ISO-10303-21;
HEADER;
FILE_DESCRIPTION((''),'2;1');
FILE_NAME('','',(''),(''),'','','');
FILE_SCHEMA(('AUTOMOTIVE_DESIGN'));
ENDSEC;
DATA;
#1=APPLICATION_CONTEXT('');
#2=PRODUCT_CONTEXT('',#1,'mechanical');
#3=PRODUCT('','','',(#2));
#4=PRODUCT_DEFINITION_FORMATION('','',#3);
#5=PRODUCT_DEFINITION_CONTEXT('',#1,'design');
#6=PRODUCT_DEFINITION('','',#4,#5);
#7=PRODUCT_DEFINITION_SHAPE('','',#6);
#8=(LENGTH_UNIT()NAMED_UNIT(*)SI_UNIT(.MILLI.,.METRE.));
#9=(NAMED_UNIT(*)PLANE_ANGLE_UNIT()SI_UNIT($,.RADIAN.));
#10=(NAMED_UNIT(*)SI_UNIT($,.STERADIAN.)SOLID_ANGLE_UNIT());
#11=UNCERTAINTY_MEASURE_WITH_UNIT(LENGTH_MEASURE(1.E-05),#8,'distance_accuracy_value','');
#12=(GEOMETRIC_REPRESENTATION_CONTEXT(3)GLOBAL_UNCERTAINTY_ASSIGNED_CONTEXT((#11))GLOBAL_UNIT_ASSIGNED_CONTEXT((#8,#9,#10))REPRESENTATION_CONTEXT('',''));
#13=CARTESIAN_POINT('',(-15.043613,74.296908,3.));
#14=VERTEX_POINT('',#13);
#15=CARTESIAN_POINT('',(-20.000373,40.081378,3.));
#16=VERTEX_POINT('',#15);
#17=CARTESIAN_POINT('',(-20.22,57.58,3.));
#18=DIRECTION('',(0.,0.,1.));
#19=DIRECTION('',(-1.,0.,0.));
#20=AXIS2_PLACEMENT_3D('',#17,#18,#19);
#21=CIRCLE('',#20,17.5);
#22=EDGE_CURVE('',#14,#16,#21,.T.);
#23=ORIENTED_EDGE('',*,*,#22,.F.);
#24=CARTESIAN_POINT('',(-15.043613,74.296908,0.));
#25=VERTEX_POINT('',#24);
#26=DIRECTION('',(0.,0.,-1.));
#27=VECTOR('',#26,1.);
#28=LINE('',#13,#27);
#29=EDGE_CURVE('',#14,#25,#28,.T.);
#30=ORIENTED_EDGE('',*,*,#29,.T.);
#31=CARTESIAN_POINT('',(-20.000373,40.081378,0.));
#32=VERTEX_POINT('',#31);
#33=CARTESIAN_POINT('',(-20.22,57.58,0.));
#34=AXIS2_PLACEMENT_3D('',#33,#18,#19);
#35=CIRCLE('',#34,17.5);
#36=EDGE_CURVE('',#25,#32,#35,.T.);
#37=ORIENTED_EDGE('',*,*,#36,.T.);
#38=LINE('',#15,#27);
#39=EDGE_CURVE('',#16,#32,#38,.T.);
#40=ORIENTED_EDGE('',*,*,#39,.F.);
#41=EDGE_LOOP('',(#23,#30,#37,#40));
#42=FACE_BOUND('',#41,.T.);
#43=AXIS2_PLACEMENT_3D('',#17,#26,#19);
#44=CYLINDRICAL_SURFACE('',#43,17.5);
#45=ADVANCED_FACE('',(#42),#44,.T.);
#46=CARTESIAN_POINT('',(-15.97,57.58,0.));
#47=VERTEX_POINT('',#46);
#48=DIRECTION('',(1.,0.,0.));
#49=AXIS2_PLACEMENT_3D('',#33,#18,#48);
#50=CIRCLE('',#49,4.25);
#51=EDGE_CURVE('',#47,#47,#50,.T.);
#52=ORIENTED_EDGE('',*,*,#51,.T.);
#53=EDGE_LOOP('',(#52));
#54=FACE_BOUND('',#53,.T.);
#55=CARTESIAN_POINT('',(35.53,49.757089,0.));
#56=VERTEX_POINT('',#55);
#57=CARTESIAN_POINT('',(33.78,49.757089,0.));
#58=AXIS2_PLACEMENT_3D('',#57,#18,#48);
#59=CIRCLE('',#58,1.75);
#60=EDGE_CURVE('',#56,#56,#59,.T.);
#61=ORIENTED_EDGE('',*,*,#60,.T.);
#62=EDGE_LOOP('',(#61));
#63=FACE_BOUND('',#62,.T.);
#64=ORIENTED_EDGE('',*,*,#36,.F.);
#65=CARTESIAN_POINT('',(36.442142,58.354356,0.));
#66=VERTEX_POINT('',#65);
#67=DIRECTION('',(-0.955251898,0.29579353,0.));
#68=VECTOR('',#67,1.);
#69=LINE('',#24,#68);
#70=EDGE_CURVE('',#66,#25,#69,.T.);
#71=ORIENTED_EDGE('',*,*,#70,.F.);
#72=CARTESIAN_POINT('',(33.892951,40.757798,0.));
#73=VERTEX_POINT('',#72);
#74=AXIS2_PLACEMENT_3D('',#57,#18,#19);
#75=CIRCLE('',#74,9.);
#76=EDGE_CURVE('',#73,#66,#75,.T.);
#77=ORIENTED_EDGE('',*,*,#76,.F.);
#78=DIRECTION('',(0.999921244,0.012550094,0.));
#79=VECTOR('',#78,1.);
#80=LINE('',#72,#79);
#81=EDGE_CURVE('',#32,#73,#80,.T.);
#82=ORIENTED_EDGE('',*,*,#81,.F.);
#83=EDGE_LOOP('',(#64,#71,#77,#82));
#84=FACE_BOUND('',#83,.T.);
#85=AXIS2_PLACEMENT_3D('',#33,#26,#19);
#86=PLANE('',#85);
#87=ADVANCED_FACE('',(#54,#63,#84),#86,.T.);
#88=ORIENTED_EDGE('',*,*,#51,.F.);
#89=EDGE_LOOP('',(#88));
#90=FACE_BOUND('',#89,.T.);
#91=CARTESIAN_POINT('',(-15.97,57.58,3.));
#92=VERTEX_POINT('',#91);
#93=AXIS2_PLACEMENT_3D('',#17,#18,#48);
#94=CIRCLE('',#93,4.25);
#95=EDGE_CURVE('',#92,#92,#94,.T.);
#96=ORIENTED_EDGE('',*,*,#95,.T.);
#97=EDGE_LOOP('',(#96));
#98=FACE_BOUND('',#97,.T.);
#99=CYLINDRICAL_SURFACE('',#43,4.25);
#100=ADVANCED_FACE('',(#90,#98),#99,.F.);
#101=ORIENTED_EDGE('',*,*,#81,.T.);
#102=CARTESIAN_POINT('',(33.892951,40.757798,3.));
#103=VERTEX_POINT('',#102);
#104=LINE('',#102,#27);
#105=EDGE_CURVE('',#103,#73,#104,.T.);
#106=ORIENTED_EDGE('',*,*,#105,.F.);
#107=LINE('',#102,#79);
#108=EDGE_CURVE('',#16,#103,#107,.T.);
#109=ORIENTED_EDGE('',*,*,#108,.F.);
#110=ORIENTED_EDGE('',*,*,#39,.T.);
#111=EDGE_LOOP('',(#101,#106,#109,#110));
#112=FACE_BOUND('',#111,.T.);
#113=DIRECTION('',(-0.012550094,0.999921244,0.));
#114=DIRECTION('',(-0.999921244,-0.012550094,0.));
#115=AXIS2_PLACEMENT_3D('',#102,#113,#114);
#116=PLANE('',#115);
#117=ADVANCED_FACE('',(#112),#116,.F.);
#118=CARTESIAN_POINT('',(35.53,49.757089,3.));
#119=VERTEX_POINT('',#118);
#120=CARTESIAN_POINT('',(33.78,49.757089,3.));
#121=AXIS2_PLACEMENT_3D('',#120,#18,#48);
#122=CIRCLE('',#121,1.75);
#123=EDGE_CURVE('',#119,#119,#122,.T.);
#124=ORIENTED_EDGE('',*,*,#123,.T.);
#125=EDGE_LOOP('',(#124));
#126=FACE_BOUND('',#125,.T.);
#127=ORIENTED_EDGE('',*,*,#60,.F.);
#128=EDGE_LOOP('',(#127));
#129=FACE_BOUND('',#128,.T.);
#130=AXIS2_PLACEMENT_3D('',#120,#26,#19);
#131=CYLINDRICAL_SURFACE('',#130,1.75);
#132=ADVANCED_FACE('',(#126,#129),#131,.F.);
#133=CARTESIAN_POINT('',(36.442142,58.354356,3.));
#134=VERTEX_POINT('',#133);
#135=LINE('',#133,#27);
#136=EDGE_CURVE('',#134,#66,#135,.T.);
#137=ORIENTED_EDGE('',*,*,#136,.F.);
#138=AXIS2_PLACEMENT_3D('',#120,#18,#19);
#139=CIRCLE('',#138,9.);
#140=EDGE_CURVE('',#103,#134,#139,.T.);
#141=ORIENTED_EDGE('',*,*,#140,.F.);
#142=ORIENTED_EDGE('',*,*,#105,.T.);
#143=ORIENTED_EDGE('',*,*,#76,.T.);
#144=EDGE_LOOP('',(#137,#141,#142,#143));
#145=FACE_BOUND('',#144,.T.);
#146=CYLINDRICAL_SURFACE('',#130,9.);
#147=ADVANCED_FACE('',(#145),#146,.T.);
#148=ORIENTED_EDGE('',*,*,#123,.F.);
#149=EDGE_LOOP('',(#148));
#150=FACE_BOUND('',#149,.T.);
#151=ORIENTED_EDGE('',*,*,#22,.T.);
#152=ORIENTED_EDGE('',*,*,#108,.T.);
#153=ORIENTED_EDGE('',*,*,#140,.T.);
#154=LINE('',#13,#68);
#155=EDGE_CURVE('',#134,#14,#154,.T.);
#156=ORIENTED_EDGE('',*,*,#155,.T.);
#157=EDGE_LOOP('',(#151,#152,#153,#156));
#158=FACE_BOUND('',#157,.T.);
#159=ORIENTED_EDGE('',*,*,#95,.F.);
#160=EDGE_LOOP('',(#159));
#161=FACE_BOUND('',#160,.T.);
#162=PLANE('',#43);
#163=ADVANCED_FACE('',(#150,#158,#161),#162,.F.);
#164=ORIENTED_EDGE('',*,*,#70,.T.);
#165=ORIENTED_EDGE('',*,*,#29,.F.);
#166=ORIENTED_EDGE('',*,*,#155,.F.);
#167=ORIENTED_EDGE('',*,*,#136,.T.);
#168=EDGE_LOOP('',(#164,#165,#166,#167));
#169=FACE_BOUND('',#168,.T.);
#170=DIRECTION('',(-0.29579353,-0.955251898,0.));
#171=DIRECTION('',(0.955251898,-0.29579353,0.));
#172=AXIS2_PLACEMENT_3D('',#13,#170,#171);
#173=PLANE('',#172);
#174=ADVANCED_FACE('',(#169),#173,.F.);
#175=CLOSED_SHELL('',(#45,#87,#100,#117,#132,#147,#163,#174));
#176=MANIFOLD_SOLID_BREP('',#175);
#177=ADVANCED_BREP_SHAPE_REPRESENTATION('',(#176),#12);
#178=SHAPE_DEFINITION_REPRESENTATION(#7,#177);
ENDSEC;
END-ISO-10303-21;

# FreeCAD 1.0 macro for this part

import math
import FreeCAD as App
import Part
import Sketcher

doc = App.newDocument("Part")
body = doc.addObject("PartDesign::Body", "Body")

sketch1 = body.newObject("Sketcher::SketchObject", "Sketch")
sketch1.AttachmentSupport = (doc.getObject("XY_Plane"), [""])
sketch1.MapMode = "FlatFace"
sketch1.addGeometry([
    Part.LineSegment(App.Vector(36.4, 58.4, 0), App.Vector(-15, 74.3, 0)),
    Part.ArcOfCircle(Part.Circle(App.Vector(-20.2, 57.6, 0), App.Vector(0, 0, 1), 17.5), math.radians(73), math.radians(271)),
    Part.LineSegment(App.Vector(-20, 40.1, 0), App.Vector(33.9, 40.8, 0)),
    Part.ArcOfCircle(Part.Circle(App.Vector(33.8, 49.8, 0), App.Vector(0, 0, 1), 9), math.radians(-89), math.radians(73)),
    Part.Circle(App.Vector(33.8, 49.8, 0), App.Vector(0, 0, 1), 1.8),
    Part.Circle(App.Vector(-20.2, 57.6, 0), App.Vector(0, 0, 1), 4.2),
], False)
sketch1.addConstraint([
    Sketcher.Constraint("Tangent", 0, 2, 1, 1),
    Sketcher.Constraint("Tangent", 1, 2, 2, 1),
    Sketcher.Constraint("Tangent", 2, 2, 3, 1),
    Sketcher.Constraint("Tangent", 3, 2, 0, 1),
    Sketcher.Constraint("Coincident", 4, 3, 3, 3),
    Sketcher.Constraint("Coincident", 5, 3, 1, 3),
    Sketcher.Constraint("Radius", 3, 9.0),
    Sketcher.Constraint("Diameter", 4, 3.5),
    Sketcher.Constraint("Diameter", 5, 8.5),
    Sketcher.Constraint("Radius", 1, 17.5),
    Sketcher.Constraint("DistanceX", 1, 3, 3, 3, 54.0),
    Sketcher.Constraint("DistanceX", 1, 3, -1, 1, 20.22),
    Sketcher.Constraint("DistanceY", -1, 1, 1, 3, 57.58),
    Sketcher.Constraint("Distance", 0, 53.897569),
])
pad1 = body.newObject("PartDesign::Pad", "Pad")
pad1.Profile = sketch1
pad1.Length = 3

doc.recompute()
